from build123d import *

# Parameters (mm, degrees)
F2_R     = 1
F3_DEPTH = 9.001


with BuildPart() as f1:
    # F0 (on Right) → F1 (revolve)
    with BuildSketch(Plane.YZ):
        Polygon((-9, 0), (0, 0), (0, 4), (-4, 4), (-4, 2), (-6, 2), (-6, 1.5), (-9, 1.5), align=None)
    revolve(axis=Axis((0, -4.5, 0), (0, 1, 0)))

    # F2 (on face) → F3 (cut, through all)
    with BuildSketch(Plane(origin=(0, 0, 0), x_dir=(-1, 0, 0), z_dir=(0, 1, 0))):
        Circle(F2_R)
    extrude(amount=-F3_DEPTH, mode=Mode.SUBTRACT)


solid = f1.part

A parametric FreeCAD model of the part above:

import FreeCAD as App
import Part
import Sketcher

V = App.Vector


def add_polygon(sketch, points):
    """Adds a closed chain of lines whose ends are joined by coincident constraints."""
    first, n = sketch.GeometryCount, len(points)
    for a, b in zip(points, points[1:] + points[:1]):
        sketch.addGeometry(Part.LineSegment(App.Vector(*a, 0), App.Vector(*b, 0)), False)
    for i in range(n):
        sketch.addConstraint(Sketcher.Constraint("Coincident", first + i, 2, first + (i + 1) % n, 1))

doc = App.newDocument("Part")
params = doc.addObject("Spreadsheet::Sheet", "Params")
for row, (alias, value) in enumerate([
    ("sketch1_width", "9 mm"),
    ("sketch1_width2", "4 mm"),
    ("sketch1_width3", "2 mm"),
    ("sketch1_height", "0.5 mm"),
    ("revolution_angle", "360 deg"),
    ("sketch2_diameter", "2 mm"),
], start=1):
    params.set(f"A{row}", alias)
    params.set(f"B{row}", "=" + value)
    params.setAlias(f"B{row}", alias)

body = doc.addObject("PartDesign::Body", "Body")

# Sketch on YZ plane
sketch1 = body.newObject("Sketcher::SketchObject", "Sketch")
sketch1.AttachmentSupport = (doc.getObject("YZ_Plane"), [""])
sketch1.MapMode = "FlatFace"
add_polygon(sketch1, [(-9, 0), (0, 0), (0, 4), (-4, 4), (-4, 2), (-6, 2), (-6, 1.5), (-9, 1.5)])  # lines 0-7
sketch1.addConstraint(Sketcher.Constraint("Horizontal", 0))
sketch1.addConstraint(Sketcher.Constraint("Vertical", 1))
sketch1.addConstraint(Sketcher.Constraint("Horizontal", 2))
sketch1.addConstraint(Sketcher.Constraint("Vertical", 3))
sketch1.addConstraint(Sketcher.Constraint("Horizontal", 4))
sketch1.addConstraint(Sketcher.Constraint("Vertical", 5))
sketch1.addConstraint(Sketcher.Constraint("Horizontal", 6))
sketch1.addConstraint(Sketcher.Constraint("Vertical", 7))
sketch1.addConstraint(Sketcher.Constraint("Coincident", 0, 2, -1, 1))
sketch1.addConstraint(Sketcher.Constraint("Equal", 2, 1))
sketch1.addConstraint(Sketcher.Constraint("Equal", 4, 3))
sketch1.addConstraint(Sketcher.Constraint("DistanceX", 0, 1, 0, 2, 9.0))
sketch1.addConstraint(Sketcher.Constraint("DistanceX", 2, 2, 2, 1, 4.0))
sketch1.addConstraint(Sketcher.Constraint("DistanceX", 4, 2, 4, 1, 2.0))
sketch1.addConstraint(Sketcher.Constraint("DistanceY", 5, 2, 5, 1, 0.5))
sketch1.setExpression("Constraints[19]", "Params.sketch1_width")
sketch1.setExpression("Constraints[20]", "Params.sketch1_width2")
sketch1.setExpression("Constraints[21]", "Params.sketch1_width3")
sketch1.setExpression("Constraints[22]", "Params.sketch1_height")
revolution = body.newObject("PartDesign::Revolution", "Revolution")
revolution.Profile = sketch1
revolution.ReferenceAxis = (sketch1, ["H_Axis"])
revolution.setExpression("Angle", "Params.revolution_angle")

# Sketch on XZ plane
sketch2 = body.newObject("Sketcher::SketchObject", "Sketch001")
sketch2.AttachmentSupport = (doc.getObject("XZ_Plane"), [""])
sketch2.MapMode = "FlatFace"
sketch2.addGeometry(Part.Circle(V(0, 0, 0), V(0, 0, 1), 1), False)
sketch2.addConstraint(Sketcher.Constraint("Coincident", 0, 3, -1, 1))
sketch2.addConstraint(Sketcher.Constraint("Diameter", 0, 2.0))
sketch2.setExpression("Constraints[1]", "Params.sketch2_diameter")
pocket1 = body.newObject("PartDesign::Pocket", "Pocket")
pocket1.Profile = sketch2
pocket1.Type = "ThroughAll"
pocket1.Reversed = True

doc.recompute()
